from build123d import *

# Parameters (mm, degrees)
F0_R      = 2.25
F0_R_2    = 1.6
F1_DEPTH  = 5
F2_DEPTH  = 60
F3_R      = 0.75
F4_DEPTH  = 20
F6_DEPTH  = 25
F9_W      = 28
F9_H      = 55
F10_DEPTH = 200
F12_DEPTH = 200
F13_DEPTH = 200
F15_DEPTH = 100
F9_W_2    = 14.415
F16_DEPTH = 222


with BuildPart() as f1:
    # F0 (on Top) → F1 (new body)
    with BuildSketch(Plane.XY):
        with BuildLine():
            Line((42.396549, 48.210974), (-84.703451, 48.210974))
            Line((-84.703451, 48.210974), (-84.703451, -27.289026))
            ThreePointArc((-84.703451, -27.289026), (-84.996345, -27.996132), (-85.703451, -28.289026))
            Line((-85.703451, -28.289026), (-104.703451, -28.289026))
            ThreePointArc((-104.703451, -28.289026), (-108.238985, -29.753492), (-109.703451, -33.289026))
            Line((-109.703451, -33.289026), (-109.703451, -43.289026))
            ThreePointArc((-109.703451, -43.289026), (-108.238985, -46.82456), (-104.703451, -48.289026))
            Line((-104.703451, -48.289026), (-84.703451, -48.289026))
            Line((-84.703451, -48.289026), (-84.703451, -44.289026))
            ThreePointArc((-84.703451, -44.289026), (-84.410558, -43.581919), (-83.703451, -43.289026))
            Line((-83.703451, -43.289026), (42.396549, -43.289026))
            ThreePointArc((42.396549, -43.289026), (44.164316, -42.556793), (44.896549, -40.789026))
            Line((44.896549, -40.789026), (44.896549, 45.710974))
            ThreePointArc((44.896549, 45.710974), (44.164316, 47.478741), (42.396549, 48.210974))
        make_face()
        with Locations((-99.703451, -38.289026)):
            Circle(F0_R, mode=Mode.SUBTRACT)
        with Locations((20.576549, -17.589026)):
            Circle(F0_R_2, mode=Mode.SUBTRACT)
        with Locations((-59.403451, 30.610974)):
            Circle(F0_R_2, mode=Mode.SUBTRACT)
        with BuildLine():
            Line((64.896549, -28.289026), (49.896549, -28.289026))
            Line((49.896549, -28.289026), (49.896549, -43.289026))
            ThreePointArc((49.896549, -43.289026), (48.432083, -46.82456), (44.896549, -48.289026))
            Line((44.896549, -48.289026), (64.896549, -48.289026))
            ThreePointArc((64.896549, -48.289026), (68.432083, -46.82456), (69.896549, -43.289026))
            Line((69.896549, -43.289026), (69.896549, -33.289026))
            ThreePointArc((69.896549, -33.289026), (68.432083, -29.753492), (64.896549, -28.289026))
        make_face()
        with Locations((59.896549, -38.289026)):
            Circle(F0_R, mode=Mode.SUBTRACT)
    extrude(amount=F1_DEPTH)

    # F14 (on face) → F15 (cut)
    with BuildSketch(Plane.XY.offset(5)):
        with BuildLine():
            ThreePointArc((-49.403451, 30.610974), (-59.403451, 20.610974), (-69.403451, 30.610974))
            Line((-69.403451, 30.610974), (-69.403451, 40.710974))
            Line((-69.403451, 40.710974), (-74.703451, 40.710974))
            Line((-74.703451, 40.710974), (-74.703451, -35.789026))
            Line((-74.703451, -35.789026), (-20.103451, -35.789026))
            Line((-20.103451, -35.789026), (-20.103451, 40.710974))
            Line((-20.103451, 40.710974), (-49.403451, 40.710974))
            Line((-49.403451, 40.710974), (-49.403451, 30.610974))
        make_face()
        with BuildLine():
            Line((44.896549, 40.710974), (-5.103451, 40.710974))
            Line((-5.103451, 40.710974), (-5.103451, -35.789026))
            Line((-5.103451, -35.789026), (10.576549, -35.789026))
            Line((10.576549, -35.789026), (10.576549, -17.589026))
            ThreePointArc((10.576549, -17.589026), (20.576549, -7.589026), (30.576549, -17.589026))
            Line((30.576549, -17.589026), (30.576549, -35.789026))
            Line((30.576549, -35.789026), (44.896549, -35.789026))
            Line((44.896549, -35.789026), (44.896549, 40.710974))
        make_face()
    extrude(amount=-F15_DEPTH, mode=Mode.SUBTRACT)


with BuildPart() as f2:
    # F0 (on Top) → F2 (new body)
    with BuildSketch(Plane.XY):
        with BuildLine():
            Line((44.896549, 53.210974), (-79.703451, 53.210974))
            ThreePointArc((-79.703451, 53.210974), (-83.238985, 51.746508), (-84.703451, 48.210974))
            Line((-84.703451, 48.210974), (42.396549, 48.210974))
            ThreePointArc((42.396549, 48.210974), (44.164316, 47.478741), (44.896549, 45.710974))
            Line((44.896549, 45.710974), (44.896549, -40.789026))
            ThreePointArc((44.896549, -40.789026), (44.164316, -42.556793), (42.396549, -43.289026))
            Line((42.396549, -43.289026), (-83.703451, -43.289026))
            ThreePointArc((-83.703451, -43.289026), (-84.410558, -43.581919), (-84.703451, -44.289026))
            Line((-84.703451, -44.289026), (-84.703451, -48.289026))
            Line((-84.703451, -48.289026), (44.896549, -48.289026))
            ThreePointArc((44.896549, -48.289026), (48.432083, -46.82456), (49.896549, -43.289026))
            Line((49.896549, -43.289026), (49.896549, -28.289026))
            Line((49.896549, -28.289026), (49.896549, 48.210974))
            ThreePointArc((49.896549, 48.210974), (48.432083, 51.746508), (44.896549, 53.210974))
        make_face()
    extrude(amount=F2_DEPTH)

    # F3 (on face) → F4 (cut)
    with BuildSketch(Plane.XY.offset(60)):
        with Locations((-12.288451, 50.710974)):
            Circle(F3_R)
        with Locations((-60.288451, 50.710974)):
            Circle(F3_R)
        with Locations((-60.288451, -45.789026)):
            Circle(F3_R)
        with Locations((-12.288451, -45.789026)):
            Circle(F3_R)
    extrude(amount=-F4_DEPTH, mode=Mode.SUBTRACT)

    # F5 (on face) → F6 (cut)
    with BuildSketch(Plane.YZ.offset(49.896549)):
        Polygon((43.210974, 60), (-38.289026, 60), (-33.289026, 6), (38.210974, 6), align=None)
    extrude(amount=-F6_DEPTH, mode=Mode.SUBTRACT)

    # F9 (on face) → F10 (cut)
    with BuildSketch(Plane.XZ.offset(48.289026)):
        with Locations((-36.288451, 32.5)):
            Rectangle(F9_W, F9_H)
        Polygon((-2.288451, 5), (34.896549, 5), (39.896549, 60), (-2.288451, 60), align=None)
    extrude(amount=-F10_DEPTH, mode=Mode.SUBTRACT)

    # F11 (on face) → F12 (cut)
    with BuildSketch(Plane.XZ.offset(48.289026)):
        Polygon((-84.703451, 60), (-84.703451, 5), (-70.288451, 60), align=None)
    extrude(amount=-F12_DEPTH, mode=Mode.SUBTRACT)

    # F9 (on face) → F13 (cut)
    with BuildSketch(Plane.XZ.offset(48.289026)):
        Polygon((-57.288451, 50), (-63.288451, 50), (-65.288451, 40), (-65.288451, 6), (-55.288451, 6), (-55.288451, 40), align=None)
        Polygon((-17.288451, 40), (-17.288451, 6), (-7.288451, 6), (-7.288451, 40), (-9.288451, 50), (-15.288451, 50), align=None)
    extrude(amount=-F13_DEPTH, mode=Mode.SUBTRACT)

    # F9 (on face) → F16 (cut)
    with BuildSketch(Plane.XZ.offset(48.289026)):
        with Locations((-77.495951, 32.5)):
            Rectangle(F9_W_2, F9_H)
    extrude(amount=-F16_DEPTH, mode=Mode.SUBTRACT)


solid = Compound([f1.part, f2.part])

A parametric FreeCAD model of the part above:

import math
import FreeCAD as App
import Part
import Sketcher

doc = App.newDocument("Part")
params = doc.addObject("Spreadsheet::Sheet", "Params")
for row, (alias, value) in enumerate([
    ("sketch1_radius", "5 mm"),
    ("sketch1_radius2", "0.999999 mm"),
    ("sketch1_diameter", "4.5 mm"),
    ("sketch1_diameter2", "3.2 mm"),
    ("sketch1_radius3", "2.5 mm"),
    ("pad1_length", "5 mm"),
    ("sketch2_radius", "10 mm"),
    ("sketch2_width", "50 mm"),
    ("sketch2_width2", "5.3 mm"),
    ("sketch2_width3", "54.6 mm"),
    ("sketch2_height", "10.1 mm"),
    ("pocket1_length", "100 mm"),
    ("sketch3_radius", "5 mm"),
    ("sketch3_radius2", "0.999999 mm"),
    ("sketch3_radius3", "2.5 mm"),
    ("sketch3_width", "124.6 mm"),
    ("sketch3_height", "86.5 mm"),
    ("pad2_length", "60 mm"),
    ("sketch4_diameter", "1.5 mm"),
    ("pocket2_length", "20 mm"),
    ("sketch5_width", "81.5 mm"),
    ("sketch5_width2", "71.5 mm"),
    ("pocket3_length", "25 mm"),
    ("sketch6_width", "28 mm"),
    ("sketch6_height", "55 mm"),
    ("pocket4_length", "200 mm"),
    ("sketch7_height", "55 mm"),
    ("pocket5_length", "200 mm"),
    ("sketch8_width", "6 mm"),
    ("sketch8_width2", "10 mm"),
    ("sketch8_height", "34 mm"),
    ("pocket6_length", "200 mm"),
    ("sketch9_height", "55 mm"),
    ("pocket7_length", "222 mm"),
], start=1):
    params.set(f"A{row}", alias)
    params.set(f"B{row}", "=" + value)
    params.setAlias(f"B{row}", alias)

body = doc.addObject("PartDesign::Body", "Body")
body.AllowCompound = True

# Sketch on XY plane
sketch1 = body.newObject("Sketcher::SketchObject", "Sketch")
sketch1.AttachmentSupport = (doc.getObject("XY_Plane"), [""])
sketch1.MapMode = "FlatFace"
sketch1.addGeometry(Part.LineSegment(App.Vector(42.4, 48.2, 0), App.Vector(-84.7, 48.2, 0)), False)
sketch1.addGeometry(Part.LineSegment(App.Vector(-84.7, 48.2, 0), App.Vector(-84.7, -27.3, 0)), False)
sketch1.addGeometry(Part.ArcOfCircle(Part.Circle(App.Vector(-85.7, -27.3, 0), App.Vector(0, 0, 1), 1), math.radians(-90), math.radians(0)), False)
sketch1.addGeometry(Part.LineSegment(App.Vector(-85.7, -28.3, 0), App.Vector(-104.7, -28.3, 0)), False)
sketch1.addGeometry(Part.ArcOfCircle(Part.Circle(App.Vector(-104.7, -33.3, 0), App.Vector(0, 0, 1), 5), math.radians(90), math.radians(180)), False)
sketch1.addGeometry(Part.LineSegment(App.Vector(-109.7, -33.3, 0), App.Vector(-109.7, -43.3, 0)), False)
sketch1.addGeometry(Part.ArcOfCircle(Part.Circle(App.Vector(-104.7, -43.3, 0), App.Vector(0, 0, 1), 5), math.radians(180), math.radians(270)), False)
sketch1.addGeometry(Part.LineSegment(App.Vector(-104.7, -48.3, 0), App.Vector(-84.7, -48.3, 0)), False)
sketch1.addGeometry(Part.LineSegment(App.Vector(-84.7, -48.3, 0), App.Vector(-84.7, -44.3, 0)), False)
sketch1.addGeometry(Part.ArcOfCircle(Part.Circle(App.Vector(-83.7, -44.3, 0), App.Vector(0, 0, 1), 1), math.radians(90), math.radians(180)), False)
sketch1.addGeometry(Part.LineSegment(App.Vector(-83.7, -43.3, 0), App.Vector(42.4, -43.3, 0)), False)
sketch1.addGeometry(Part.ArcOfCircle(Part.Circle(App.Vector(42.4, -40.8, 0), App.Vector(0, 0, 1), 2.5), math.radians(-90), math.radians(0)), False)
sketch1.addGeometry(Part.LineSegment(App.Vector(44.9, -40.8, 0), App.Vector(44.9, 45.7, 0)), False)
sketch1.addGeometry(Part.ArcOfCircle(Part.Circle(App.Vector(42.4, 45.7, 0), App.Vector(0, 0, 1), 2.5), math.radians(0), math.radians(90)), False)
sketch1.addGeometry(Part.Circle(App.Vector(-99.7, -38.3, 0), App.Vector(0, 0, 1), 2.2), False)
sketch1.addGeometry(Part.Circle(App.Vector(20.6, -17.6, 0), App.Vector(0, 0, 1), 1.6), False)
sketch1.addGeometry(Part.Circle(App.Vector(-59.4, 30.6, 0), App.Vector(0, 0, 1), 1.6), False)
sketch1.addGeometry(Part.LineSegment(App.Vector(64.9, -28.3, 0), App.Vector(49.9, -28.3, 0)), False)
sketch1.addGeometry(Part.LineSegment(App.Vector(49.9, -28.3, 0), App.Vector(49.9, -43.3, 0)), False)
sketch1.addGeometry(Part.ArcOfCircle(Part.Circle(App.Vector(44.9, -43.3, 0), App.Vector(0, 0, 1), 5), math.radians(-90), math.radians(0)), False)
sketch1.addGeometry(Part.LineSegment(App.Vector(44.9, -48.3, 0), App.Vector(64.9, -48.3, 0)), False)
sketch1.addGeometry(Part.ArcOfCircle(Part.Circle(App.Vector(64.9, -43.3, 0), App.Vector(0, 0, 1), 5), math.radians(-90), math.radians(0)), False)
sketch1.addGeometry(Part.LineSegment(App.Vector(69.9, -43.3, 0), App.Vector(69.9, -33.3, 0)), False)
sketch1.addGeometry(Part.ArcOfCircle(Part.Circle(App.Vector(64.9, -33.3, 0), App.Vector(0, 0, 1), 5), math.radians(0), math.radians(90)), False)
sketch1.addGeometry(Part.Circle(App.Vector(59.9, -38.3, 0), App.Vector(0, 0, 1), 2.2), False)
sketch1.addConstraint(Sketcher.Constraint("Coincident", 0, 2, 1, 1))
sketch1.addConstraint(Sketcher.Constraint("Coincident", 1, 2, 2, 2))
sketch1.addConstraint(Sketcher.Constraint("Coincident", 2, 1, 3, 1))
sketch1.addConstraint(Sketcher.Constraint("Tangent", 3, 2, 4, 1))
sketch1.addConstraint(Sketcher.Constraint("Tangent", 4, 2, 5, 1))
sketch1.addConstraint(Sketcher.Constraint("Tangent", 5, 2, 6, 1))
sketch1.addConstraint(Sketcher.Constraint("Tangent", 6, 2, 7, 1))
sketch1.addConstraint(Sketcher.Constraint("Coincident", 7, 2, 8, 1))
sketch1.addConstraint(Sketcher.Constraint("Tangent", 8, 2, 9, 2))
sketch1.addConstraint(Sketcher.Constraint("Tangent", 9, 1, 10, 1))
sketch1.addConstraint(Sketcher.Constraint("Tangent", 10, 2, 11, 1))
sketch1.addConstraint(Sketcher.Constraint("Tangent", 11, 2, 12, 1))
sketch1.addConstraint(Sketcher.Constraint("Tangent", 12, 2, 13, 1))
sketch1.addConstraint(Sketcher.Constraint("Tangent", 13, 2, 0, 1))
sketch1.addConstraint(Sketcher.Constraint("Coincident", 17, 2, 18, 1))
sketch1.addConstraint(Sketcher.Constraint("Tangent", 18, 2, 19, 2))
sketch1.addConstraint(Sketcher.Constraint("Tangent", 19, 1, 20, 1))
sketch1.addConstraint(Sketcher.Constraint("Tangent", 20, 2, 21, 1))
sketch1.addConstraint(Sketcher.Constraint("Tangent", 21, 2, 22, 1))
sketch1.addConstraint(Sketcher.Constraint("Tangent", 22, 2, 23, 1))
sketch1.addConstraint(Sketcher.Constraint("Tangent", 23, 2, 17, 1))
sketch1.addConstraint(Sketcher.Constraint("Horizontal", 0))
sketch1.addConstraint(Sketcher.Constraint("Vertical", 1))
sketch1.addConstraint(Sketcher.Constraint("Horizontal", 3))
sketch1.addConstraint(Sketcher.Constraint("Vertical", 5))
sketch1.addConstraint(Sketcher.Constraint("Horizontal", 7))
sketch1.addConstraint(Sketcher.Constraint("Vertical", 8))
sketch1.addConstraint(Sketcher.Constraint("Horizontal", 10))
sketch1.addConstraint(Sketcher.Constraint("Vertical", 12))
sketch1.addConstraint(Sketcher.Constraint("Horizontal", 17))
sketch1.addConstraint(Sketcher.Constraint("Vertical", 18))
sketch1.addConstraint(Sketcher.Constraint("Horizontal", 20))
sketch1.addConstraint(Sketcher.Constraint("Vertical", 22))
sketch1.addConstraint(Sketcher.Constraint("Equal", 4, 6))
sketch1.addConstraint(Sketcher.Constraint("Equal", 11, 13))
sketch1.addConstraint(Sketcher.Constraint("Equal", 15, 16))
sketch1.addConstraint(Sketcher.Constraint("Equal", 6, 19))
sketch1.addConstraint(Sketcher.Constraint("Equal", 19, 21))
sketch1.addConstraint(Sketcher.Constraint("Equal", 21, 23))
sketch1.addConstraint(Sketcher.Constraint("Equal", 14, 24))
sketch1.addConstraint(Sketcher.Constraint("Horizontal", 6, 3, 19, 3))
sketch1.addConstraint(Sketcher.Constraint("Horizontal", 4, 3, 23, 3))
sketch1.addConstraint(Sketcher.Constraint("Horizontal", 14, 3, 24, 3))
sketch1.addConstraint(Sketcher.Constraint("Horizontal", 5, 2, 9, 1))
sketch1.addConstraint(Sketcher.Constraint("Vertical", 1, 2, 7, 2))
sketch1.addConstraint(Sketcher.Constraint("Vertical", 19, 3, 11, 2))
sketch1.addConstraint(Sketcher.Constraint("Equal", 7, 20))
sketch1.addConstraint(Sketcher.Constraint("Equal", 17, 18))
sketch1.addConstraint(Sketcher.Constraint("Radius", 4, 5.0))
sketch1.addConstraint(Sketcher.Constraint("Radius", 9, 0.999999))
sketch1.addConstraint(Sketcher.Constraint("Diameter", 14, 4.5))
sketch1.addConstraint(Sketcher.Constraint("Diameter", 15, 3.2))
sketch1.addConstraint(Sketcher.Constraint("Radius", 11, 2.5))
sketch1.addConstraint(Sketcher.Constraint("DistanceX", 3, 2, 3, 1, 19.0))
sketch1.addConstraint(Sketcher.Constraint("DistanceX", 7, 1, 7, 2, 20.0))
sketch1.addConstraint(Sketcher.Constraint("DistanceX", 0, 2, 0, 1, 127.1))
sketch1.addConstraint(Sketcher.Constraint("DistanceY", 1, 2, 1, 1, 75.5))
sketch1.addConstraint(Sketcher.Constraint("DistanceY", 12, 1, 12, 2, 86.5))
sketch1.addConstraint(Sketcher.Constraint("DistanceX", 2, 3, 9, 3, 2.000002))
sketch1.addConstraint(Sketcher.Constraint("DistanceX", 4, 3, 14, 3, 5.0))
sketch1.addConstraint(Sketcher.Constraint("DistanceY", 14, 3, 4, 3, 5.0))
sketch1.addConstraint(Sketcher.Constraint("DistanceX", 24, 3, 21, 3, 5.0))
sketch1.addConstraint(Sketcher.Constraint("DistanceY", 11, 3, 15, 3, 23.2))
sketch1.addConstraint(Sketcher.Constraint("DistanceX", 4, 3, 16, 3, 45.3))
sketch1.addConstraint(Sketcher.Constraint("DistanceY", 4, 3, 16, 3, 63.9))
sketch1.addConstraint(Sketcher.Constraint("DistanceX", 15, 3, 11, 3, 21.82))
sketch1.addConstraint(Sketcher.Constraint("DistanceX", 4, 3, -1, 1, 104.703451))
sketch1.addConstraint(Sketcher.Constraint("DistanceY", 2, 3, -1, 1, 27.289023))
sketch1.setExpression("Constraints[48]", "Params.sketch1_radius")
sketch1.setExpression("Constraints[49]", "Params.sketch1_radius2")
sketch1.setExpression("Constraints[50]", "Params.sketch1_diameter")
sketch1.setExpression("Constraints[51]", "Params.sketch1_diameter2")
sketch1.setExpression("Constraints[52]", "Params.sketch1_radius3")
pad1 = body.newObject("PartDesign::Pad", "Pad")
pad1.Profile = sketch1
pad1.setExpression("Length", "Params.pad1_length")

# Sketch on XY plane
sketch2 = body.newObject("Sketcher::SketchObject", "Sketch001")
sketch2.AttachmentSupport = (doc.getObject("XY_Plane"), [""])
sketch2.MapMode = "FlatFace"
sketch2.AttachmentOffset = App.Placement(App.Vector(0, 0, 5), App.Rotation())
sketch2.addGeometry(Part.ArcOfCircle(Part.Circle(App.Vector(-59, 31, 0), App.Vector(0, 0, 1), 10), math.radians(180), math.radians(360)), False)
sketch2.addGeometry(Part.LineSegment(App.Vector(-69, 31, 0), App.Vector(-69, 41, 0)), False)
sketch2.addGeometry(Part.LineSegment(App.Vector(-69, 41, 0), App.Vector(-75, 41, 0)), False)
sketch2.addGeometry(Part.LineSegment(App.Vector(-75, 41, 0), App.Vector(-75, -36, 0)), False)
sketch2.addGeometry(Part.LineSegment(App.Vector(-75, -36, 0), App.Vector(-20, -36, 0)), False)
sketch2.addGeometry(Part.LineSegment(App.Vector(-20, -36, 0), App.Vector(-20, 41, 0)), False)
sketch2.addGeometry(Part.LineSegment(App.Vector(-20, 41, 0), App.Vector(-49, 41, 0)), False)
sketch2.addGeometry(Part.LineSegment(App.Vector(-49, 41, 0), App.Vector(-49, 31, 0)), False)
sketch2.addGeometry(Part.LineSegment(App.Vector(45, 41, 0), App.Vector(-5, 41, 0)), False)
sketch2.addGeometry(Part.LineSegment(App.Vector(-5, 41, 0), App.Vector(-5, -36, 0)), False)
sketch2.addGeometry(Part.LineSegment(App.Vector(-5, -36, 0), App.Vector(11, -36, 0)), False)
sketch2.addGeometry(Part.LineSegment(App.Vector(11, -36, 0), App.Vector(11, -18, 0)), False)
sketch2.addGeometry(Part.ArcOfCircle(Part.Circle(App.Vector(21, -18, 0), App.Vector(0, 0, 1), 10), math.radians(0), math.radians(180)), False)
sketch2.addGeometry(Part.LineSegment(App.Vector(31, -18, 0), App.Vector(31, -36, 0)), False)
sketch2.addGeometry(Part.LineSegment(App.Vector(31, -36, 0), App.Vector(45, -36, 0)), False)
sketch2.addGeometry(Part.LineSegment(App.Vector(45, -36, 0), App.Vector(45, 41, 0)), False)
sketch2.addConstraint(Sketcher.Constraint("Tangent", 0, 1, 1, 1))
sketch2.addConstraint(Sketcher.Constraint("Coincident", 1, 2, 2, 1))
sketch2.addConstraint(Sketcher.Constraint("Coincident", 2, 2, 3, 1))
sketch2.addConstraint(Sketcher.Constraint("Coincident", 3, 2, 4, 1))
sketch2.addConstraint(Sketcher.Constraint("Coincident", 4, 2, 5, 1))
sketch2.addConstraint(Sketcher.Constraint("Coincident", 5, 2, 6, 1))
sketch2.addConstraint(Sketcher.Constraint("Coincident", 6, 2, 7, 1))
sketch2.addConstraint(Sketcher.Constraint("Tangent", 7, 2, 0, 2))
sketch2.addConstraint(Sketcher.Constraint("Coincident", 8, 2, 9, 1))
sketch2.addConstraint(Sketcher.Constraint("Coincident", 9, 2, 10, 1))
sketch2.addConstraint(Sketcher.Constraint("Coincident", 10, 2, 11, 1))
sketch2.addConstraint(Sketcher.Constraint("Tangent", 11, 2, 12, 2))
sketch2.addConstraint(Sketcher.Constraint("Tangent", 12, 1, 13, 1))
sketch2.addConstraint(Sketcher.Constraint("Coincident", 13, 2, 14, 1))
sketch2.addConstraint(Sketcher.Constraint("Coincident", 14, 2, 15, 1))
sketch2.addConstraint(Sketcher.Constraint("Coincident", 15, 2, 8, 1))
sketch2.addConstraint(Sketcher.Constraint("Vertical", 1))
sketch2.addConstraint(Sketcher.Constraint("Horizontal", 2))
sketch2.addConstraint(Sketcher.Constraint("Vertical", 3))
sketch2.addConstraint(Sketcher.Constraint("Horizontal", 4))
sketch2.addConstraint(Sketcher.Constraint("Vertical", 5))
sketch2.addConstraint(Sketcher.Constraint("Horizontal", 6))
sketch2.addConstraint(Sketcher.Constraint("Vertical", 7))
sketch2.addConstraint(Sketcher.Constraint("Horizontal", 8))
sketch2.addConstraint(Sketcher.Constraint("Vertical", 9))
sketch2.addConstraint(Sketcher.Constraint("Horizontal", 10))
sketch2.addConstraint(Sketcher.Constraint("Vertical", 11))
sketch2.addConstraint(Sketcher.Constraint("Vertical", 13))
sketch2.addConstraint(Sketcher.Constraint("Horizontal", 14))
sketch2.addConstraint(Sketcher.Constraint("Vertical", 15))
sketch2.addConstraint(Sketcher.Constraint("Equal", 0, 12))
sketch2.addConstraint(Sketcher.Constraint("Horizontal", 2, 2, 5, 2))
sketch2.addConstraint(Sketcher.Constraint("Horizontal", 6, 2, 8, 2))
sketch2.addConstraint(Sketcher.Constraint("Horizontal", 4, 2, 9, 2))
sketch2.addConstraint(Sketcher.Constraint("Horizontal", 10, 2, 13, 2))
sketch2.addConstraint(Sketcher.Constraint("Radius", 0, 10.0))
sketch2.addConstraint(Sketcher.Constraint("DistanceX", 8, 2, 8, 1, 50.0))
sketch2.addConstraint(Sketcher.Constraint("DistanceX", 2, 2, 2, 1, 5.3))
sketch2.addConstraint(Sketcher.Constraint("DistanceX", 4, 1, 4, 2, 54.6))
sketch2.addConstraint(Sketcher.Constraint("DistanceY", 1, 1, 1, 2, 10.1))
sketch2.addConstraint(Sketcher.Constraint("DistanceY", 3, 2, 3, 1, 76.5))
sketch2.addConstraint(Sketcher.Constraint("DistanceY", 11, 1, 11, 2, 18.2))
sketch2.addConstraint(Sketcher.Constraint("DistanceX", 5, 2, 8, 2, 15.0))
sketch2.addConstraint(Sketcher.Constraint("DistanceX", 10, 1, 10, 2, 15.68))
sketch2.addConstraint(Sketcher.Constraint("DistanceX", 0, 3, -1, 1, 59.403451))
sketch2.addConstraint(Sketcher.Constraint("DistanceY", -1, 1, 0, 3, 30.610974))
sketch2.setExpression("Constraints[35]", "Params.sketch2_radius")
sketch2.setExpression("Constraints[36]", "Params.sketch2_width")
sketch2.setExpression("Constraints[37]", "Params.sketch2_width2")
sketch2.setExpression("Constraints[38]", "Params.sketch2_width3")
sketch2.setExpression("Constraints[39]", "Params.sketch2_height")
pocket1 = body.newObject("PartDesign::Pocket", "Pocket")
pocket1.Profile = sketch2
pocket1.setExpression("Length", "Params.pocket1_length")
body2 = doc.addObject("PartDesign::Body", "Body001")

# Sketch on XY plane
sketch3 = body2.newObject("Sketcher::SketchObject", "Sketch002")
sketch3.AttachmentSupport = (doc.getObject("XY_Plane001"), [""])
sketch3.MapMode = "FlatFace"
sketch3.addGeometry(Part.LineSegment(App.Vector(44.9, 53.2, 0), App.Vector(-79.7, 53.2, 0)), False)
sketch3.addGeometry(Part.ArcOfCircle(Part.Circle(App.Vector(-79.7, 48.2, 0), App.Vector(0, 0, 1), 5), math.radians(90), math.radians(180)), False)
sketch3.addGeometry(Part.LineSegment(App.Vector(-84.7, 48.2, 0), App.Vector(42.4, 48.2, 0)), False)
sketch3.addGeometry(Part.ArcOfCircle(Part.Circle(App.Vector(42.4, 45.7, 0), App.Vector(0, 0, 1), 2.5), math.radians(0), math.radians(90)), False)
sketch3.addGeometry(Part.LineSegment(App.Vector(44.9, 45.7, 0), App.Vector(44.9, -40.8, 0)), False)
sketch3.addGeometry(Part.ArcOfCircle(Part.Circle(App.Vector(42.4, -40.8, 0), App.Vector(0, 0, 1), 2.5), math.radians(-90), math.radians(0)), False)
sketch3.addGeometry(Part.LineSegment(App.Vector(42.4, -43.3, 0), App.Vector(-83.7, -43.3, 0)), False)
sketch3.addGeometry(Part.ArcOfCircle(Part.Circle(App.Vector(-83.7, -44.3, 0), App.Vector(0, 0, 1), 1), math.radians(90), math.radians(180)), False)
sketch3.addGeometry(Part.LineSegment(App.Vector(-84.7, -44.3, 0), App.Vector(-84.7, -48.3, 0)), False)
sketch3.addGeometry(Part.LineSegment(App.Vector(-84.7, -48.3, 0), App.Vector(44.9, -48.3, 0)), False)
sketch3.addGeometry(Part.ArcOfCircle(Part.Circle(App.Vector(44.9, -43.3, 0), App.Vector(0, 0, 1), 5), math.radians(-90), math.radians(0)), False)
sketch3.addGeometry(Part.LineSegment(App.Vector(49.9, -43.3, 0), App.Vector(49.9, 48.2, 0)), False)
sketch3.addGeometry(Part.ArcOfCircle(Part.Circle(App.Vector(44.9, 48.2, 0), App.Vector(0, 0, 1), 5), math.radians(0), math.radians(90)), False)
sketch3.addConstraint(Sketcher.Constraint("Tangent", 0, 2, 1, 1))
sketch3.addConstraint(Sketcher.Constraint("Coincident", 1, 2, 2, 1))
sketch3.addConstraint(Sketcher.Constraint("Tangent", 2, 2, 3, 2))
sketch3.addConstraint(Sketcher.Constraint("Tangent", 3, 1, 4, 1))
sketch3.addConstraint(Sketcher.Constraint("Tangent", 4, 2, 5, 2))
sketch3.addConstraint(Sketcher.Constraint("Tangent", 5, 1, 6, 1))
sketch3.addConstraint(Sketcher.Constraint("Tangent", 6, 2, 7, 1))
sketch3.addConstraint(Sketcher.Constraint("Tangent", 7, 2, 8, 1))
sketch3.addConstraint(Sketcher.Constraint("Coincident", 8, 2, 9, 1))
sketch3.addConstraint(Sketcher.Constraint("Tangent", 9, 2, 10, 1))
sketch3.addConstraint(Sketcher.Constraint("Tangent", 10, 2, 11, 1))
sketch3.addConstraint(Sketcher.Constraint("Tangent", 11, 2, 12, 1))
sketch3.addConstraint(Sketcher.Constraint("Tangent", 12, 2, 0, 1))
sketch3.addConstraint(Sketcher.Constraint("Horizontal", 0))
sketch3.addConstraint(Sketcher.Constraint("Horizontal", 2))
sketch3.addConstraint(Sketcher.Constraint("Vertical", 4))
sketch3.addConstraint(Sketcher.Constraint("Horizontal", 6))
sketch3.addConstraint(Sketcher.Constraint("Vertical", 8))
sketch3.addConstraint(Sketcher.Constraint("Horizontal", 9))
sketch3.addConstraint(Sketcher.Constraint("Vertical", 11))
sketch3.addConstraint(Sketcher.Constraint("Equal", 3, 5))
sketch3.addConstraint(Sketcher.Constraint("Equal", 1, 10))
sketch3.addConstraint(Sketcher.Constraint("Equal", 10, 12))
sketch3.addConstraint(Sketcher.Constraint("Horizontal", 12, 3, 1, 2))
sketch3.addConstraint(Sketcher.Constraint("Horizontal", 10, 3, 5, 1))
sketch3.addConstraint(Sketcher.Constraint("Vertical", 12, 3, 3, 1))
sketch3.addConstraint(Sketcher.Constraint("Vertical", 1, 2, 7, 2))
sketch3.addConstraint(Sketcher.Constraint("Radius", 1, 5.0))
sketch3.addConstraint(Sketcher.Constraint("Radius", 7, 0.999999))
sketch3.addConstraint(Sketcher.Constraint("Radius", 3, 2.5))
sketch3.addConstraint(Sketcher.Constraint("DistanceX", 0, 2, 0, 1, 124.6))
sketch3.addConstraint(Sketcher.Constraint("DistanceY", 4, 2, 4, 1, 86.5))
sketch3.addConstraint(Sketcher.Constraint("DistanceX", 1, 3, -1, 1, 79.703451))
sketch3.addConstraint(Sketcher.Constraint("DistanceY", -1, 1, 1, 3, 48.210974))
sketch3.setExpression("Constraints[27]", "Params.sketch3_radius")
sketch3.setExpression("Constraints[28]", "Params.sketch3_radius2")
sketch3.setExpression("Constraints[29]", "Params.sketch3_radius3")
sketch3.setExpression("Constraints[30]", "Params.sketch3_width")
sketch3.setExpression("Constraints[31]", "Params.sketch3_height")
pad2 = body2.newObject("PartDesign::Pad", "Pad001")
pad2.Profile = sketch3
pad2.setExpression("Length", "Params.pad2_length")

# Sketch on XY plane
sketch4 = body2.newObject("Sketcher::SketchObject", "Sketch003")
sketch4.AttachmentSupport = (doc.getObject("XY_Plane001"), [""])
sketch4.MapMode = "FlatFace"
sketch4.AttachmentOffset = App.Placement(App.Vector(0, 0, 60), App.Rotation())
sketch4.addGeometry(Part.Circle(App.Vector(-12.3, 50.7, 0), App.Vector(0, 0, 1), 0.8), False)
sketch4.addGeometry(Part.Circle(App.Vector(-60.3, 50.7, 0), App.Vector(0, 0, 1), 0.8), False)
sketch4.addGeometry(Part.Circle(App.Vector(-60.3, -45.8, 0), App.Vector(0, 0, 1), 0.8), False)
sketch4.addGeometry(Part.Circle(App.Vector(-12.3, -45.8, 0), App.Vector(0, 0, 1), 0.8), False)
sketch4.addConstraint(Sketcher.Constraint("Equal", 0, 1))
sketch4.addConstraint(Sketcher.Constraint("Equal", 1, 2))
sketch4.addConstraint(Sketcher.Constraint("Equal", 2, 3))
sketch4.addConstraint(Sketcher.Constraint("Horizontal", 0, 3, 1, 3))
sketch4.addConstraint(Sketcher.Constraint("Horizontal", 2, 3, 3, 3))
sketch4.addConstraint(Sketcher.Constraint("Vertical", 1, 3, 2, 3))
sketch4.addConstraint(Sketcher.Constraint("Vertical", 0, 3, 3, 3))
sketch4.addConstraint(Sketcher.Constraint("Diameter", 0, 1.5))
sketch4.addConstraint(Sketcher.Constraint("DistanceX", 1, 3, 0, 3, 48.0))
sketch4.addConstraint(Sketcher.Constraint("DistanceY", 2, 3, 1, 3, 96.5))
sketch4.addConstraint(Sketcher.Constraint("DistanceX", 0, 3, -1, 1, 12.288451))
sketch4.addConstraint(Sketcher.Constraint("DistanceY", -1, 1, 0, 3, 50.710974))
sketch4.setExpression("Constraints[7]", "Params.sketch4_diameter")
pocket2 = body2.newObject("PartDesign::Pocket", "Pocket001")
pocket2.Profile = sketch4
pocket2.setExpression("Length", "Params.pocket2_length")

# Sketch on YZ plane
sketch5 = body2.newObject("Sketcher::SketchObject", "Sketch004")
sketch5.AttachmentSupport = (doc.getObject("YZ_Plane001"), [""])
sketch5.MapMode = "FlatFace"
sketch5.AttachmentOffset = App.Placement(App.Vector(0, 0, 49.896549), App.Rotation())
sketch5.addGeometry(Part.LineSegment(App.Vector(43, 60, 0), App.Vector(-38, 60, 0)), False)
sketch5.addGeometry(Part.LineSegment(App.Vector(-38, 60, 0), App.Vector(-33, 6, 0)), False)
sketch5.addGeometry(Part.LineSegment(App.Vector(-33, 6, 0), App.Vector(38, 6, 0)), False)
sketch5.addGeometry(Part.LineSegment(App.Vector(38, 6, 0), App.Vector(43, 60, 0)), False)
sketch5.addConstraint(Sketcher.Constraint("Coincident", 0, 2, 1, 1))
sketch5.addConstraint(Sketcher.Constraint("Coincident", 1, 2, 2, 1))
sketch5.addConstraint(Sketcher.Constraint("Coincident", 2, 2, 3, 1))
sketch5.addConstraint(Sketcher.Constraint("Coincident", 3, 2, 0, 1))
sketch5.addConstraint(Sketcher.Constraint("Horizontal", 0))
sketch5.addConstraint(Sketcher.Constraint("Horizontal", 2))
sketch5.addConstraint(Sketcher.Constraint("Equal", 1, 3))
sketch5.addConstraint(Sketcher.Constraint("DistanceX", 0, 2, 0, 1, 81.5))
sketch5.addConstraint(Sketcher.Constraint("DistanceX", 2, 1, 2, 2, 71.5))
sketch5.addConstraint(Sketcher.Constraint("DistanceY", -1, 1, 0, 2, 60.0))
sketch5.addConstraint(Sketcher.Constraint("DistanceY", -1, 1, 1, 2, 6.0))
sketch5.addConstraint(Sketcher.Constraint("DistanceX", 0, 2, -1, 1, 38.289026))
sketch5.setExpression("Constraints[7]", "Params.sketch5_width")
sketch5.setExpression("Constraints[8]", "Params.sketch5_width2")
pocket3 = body2.newObject("PartDesign::Pocket", "Pocket002")
pocket3.Profile = sketch5
pocket3.setExpression("Length", "Params.pocket3_length")

# Sketch on XZ plane
sketch6 = body2.newObject("Sketcher::SketchObject", "Sketch005")
sketch6.AttachmentSupport = (doc.getObject("XZ_Plane001"), [""])
sketch6.MapMode = "FlatFace"
sketch6.AttachmentOffset = App.Placement(App.Vector(0, 0, 48.289026), App.Rotation())
sketch6.addGeometry(Part.LineSegment(App.Vector(-50, 60, 0), App.Vector(-50, 5, 0)), False)
sketch6.addGeometry(Part.LineSegment(App.Vector(-50, 5, 0), App.Vector(-22, 5, 0)), False)
sketch6.addGeometry(Part.LineSegment(App.Vector(-22, 5, 0), App.Vector(-22, 60, 0)), False)
sketch6.addGeometry(Part.LineSegment(App.Vector(-22, 60, 0), App.Vector(-50, 60, 0)), False)
sketch6.addGeometry(Part.LineSegment(App.Vector(-2, 5, 0), App.Vector(35, 5, 0)), False)
sketch6.addGeometry(Part.LineSegment(App.Vector(35, 5, 0), App.Vector(40, 60, 0)), False)
sketch6.addGeometry(Part.LineSegment(App.Vector(40, 60, 0), App.Vector(-2, 60, 0)), False)
sketch6.addGeometry(Part.LineSegment(App.Vector(-2, 60, 0), App.Vector(-2, 5, 0)), False)
sketch6.addConstraint(Sketcher.Constraint("Coincident", 0, 2, 1, 1))
sketch6.addConstraint(Sketcher.Constraint("Coincident", 1, 2, 2, 1))
sketch6.addConstraint(Sketcher.Constraint("Coincident", 2, 2, 3, 1))
sketch6.addConstraint(Sketcher.Constraint("Coincident", 3, 2, 0, 1))
sketch6.addConstraint(Sketcher.Constraint("Coincident", 4, 2, 5, 1))
sketch6.addConstraint(Sketcher.Constraint("Coincident", 5, 2, 6, 1))
sketch6.addConstraint(Sketcher.Constraint("Coincident", 6, 2, 7, 1))
sketch6.addConstraint(Sketcher.Constraint("Coincident", 7, 2, 4, 1))
sketch6.addConstraint(Sketcher.Constraint("Vertical", 0))
sketch6.addConstraint(Sketcher.Constraint("Horizontal", 1))
sketch6.addConstraint(Sketcher.Constraint("Vertical", 2))
sketch6.addConstraint(Sketcher.Constraint("Horizontal", 3))
sketch6.addConstraint(Sketcher.Constraint("Horizontal", 4))
sketch6.addConstraint(Sketcher.Constraint("Horizontal", 6))
sketch6.addConstraint(Sketcher.Constraint("Vertical", 7))
sketch6.addConstraint(Sketcher.Constraint("Horizontal", 1, 2, 4, 2))
sketch6.addConstraint(Sketcher.Constraint("Horizontal", 3, 2, 5, 2))
sketch6.addConstraint(Sketcher.Constraint("DistanceX", 1, 1, 1, 2, 28.0))
sketch6.addConstraint(Sketcher.Constraint("DistanceY", 0, 2, 0, 1, 55.0))
sketch6.addConstraint(Sketcher.Constraint("DistanceY", -1, 1, 0, 2, 5.0))
sketch6.addConstraint(Sketcher.Constraint("DistanceX", 4, 2, 5, 2, 5.0))
sketch6.addConstraint(Sketcher.Constraint("DistanceX", 2, 2, 6, 2, 20.0))
sketch6.addConstraint(Sketcher.Constraint("DistanceX", 4, 1, 4, 2, 37.185))
sketch6.addConstraint(Sketcher.Constraint("DistanceX", 0, 2, -1, 1, 50.288451))
sketch6.setExpression("Constraints[17]", "Params.sketch6_width")
sketch6.setExpression("Constraints[18]", "Params.sketch6_height")
pocket4 = body2.newObject("PartDesign::Pocket", "Pocket003")
pocket4.Profile = sketch6
pocket4.setExpression("Length", "Params.pocket4_length")

# Sketch on XZ plane
sketch7 = body2.newObject("Sketcher::SketchObject", "Sketch006")
sketch7.AttachmentSupport = (doc.getObject("XZ_Plane001"), [""])
sketch7.MapMode = "FlatFace"
sketch7.AttachmentOffset = App.Placement(App.Vector(0, 0, 48.289026), App.Rotation())
sketch7.addGeometry(Part.LineSegment(App.Vector(-85, 60, 0), App.Vector(-85, 5, 0)), False)
sketch7.addGeometry(Part.LineSegment(App.Vector(-85, 5, 0), App.Vector(-70, 60, 0)), False)
sketch7.addGeometry(Part.LineSegment(App.Vector(-70, 60, 0), App.Vector(-85, 60, 0)), False)
sketch7.addConstraint(Sketcher.Constraint("Coincident", 0, 2, 1, 1))
sketch7.addConstraint(Sketcher.Constraint("Coincident", 1, 2, 2, 1))
sketch7.addConstraint(Sketcher.Constraint("Coincident", 2, 2, 0, 1))
sketch7.addConstraint(Sketcher.Constraint("Vertical", 0))
sketch7.addConstraint(Sketcher.Constraint("Horizontal", 2))
sketch7.addConstraint(Sketcher.Constraint("DistanceY", 0, 2, 0, 1, 55.0))
sketch7.addConstraint(Sketcher.Constraint("DistanceY", -1, 1, 0, 2, 5.0))
sketch7.addConstraint(Sketcher.Constraint("DistanceX", 2, 2, 2, 1, 14.415))
sketch7.addConstraint(Sketcher.Constraint("DistanceX", 0, 2, -1, 1, 84.703451))
sketch7.setExpression("Constraints[5]", "Params.sketch7_height")
pocket5 = body2.newObject("PartDesign::Pocket", "Pocket004")
pocket5.Profile = sketch7
pocket5.setExpression("Length", "Params.pocket5_length")

# Sketch on XZ plane
sketch8 = body2.newObject("Sketcher::SketchObject", "Sketch007")
sketch8.AttachmentSupport = (doc.getObject("XZ_Plane001"), [""])
sketch8.MapMode = "FlatFace"
sketch8.AttachmentOffset = App.Placement(App.Vector(0, 0, 48.289026), App.Rotation())
sketch8.addGeometry(Part.LineSegment(App.Vector(-57, 50, 0), App.Vector(-63, 50, 0)), False)
sketch8.addGeometry(Part.LineSegment(App.Vector(-63, 50, 0), App.Vector(-65, 40, 0)), False)
sketch8.addGeometry(Part.LineSegment(App.Vector(-65, 40, 0), App.Vector(-65, 6, 0)), False)
sketch8.addGeometry(Part.LineSegment(App.Vector(-65, 6, 0), App.Vector(-55, 6, 0)), False)
sketch8.addGeometry(Part.LineSegment(App.Vector(-55, 6, 0), App.Vector(-55, 40, 0)), False)
sketch8.addGeometry(Part.LineSegment(App.Vector(-55, 40, 0), App.Vector(-57, 50, 0)), False)
sketch8.addGeometry(Part.LineSegment(App.Vector(-17, 40, 0), App.Vector(-17, 6, 0)), False)
sketch8.addGeometry(Part.LineSegment(App.Vector(-17, 6, 0), App.Vector(-7, 6, 0)), False)
sketch8.addGeometry(Part.LineSegment(App.Vector(-7, 6, 0), App.Vector(-7, 40, 0)), False)
sketch8.addGeometry(Part.LineSegment(App.Vector(-7, 40, 0), App.Vector(-9, 50, 0)), False)
sketch8.addGeometry(Part.LineSegment(App.Vector(-9, 50, 0), App.Vector(-15, 50, 0)), False)
sketch8.addGeometry(Part.LineSegment(App.Vector(-15, 50, 0), App.Vector(-17, 40, 0)), False)
sketch8.addConstraint(Sketcher.Constraint("Coincident", 0, 2, 1, 1))
sketch8.addConstraint(Sketcher.Constraint("Coincident", 1, 2, 2, 1))
sketch8.addConstraint(Sketcher.Constraint("Coincident", 2, 2, 3, 1))
sketch8.addConstraint(Sketcher.Constraint("Coincident", 3, 2, 4, 1))
sketch8.addConstraint(Sketcher.Constraint("Coincident", 4, 2, 5, 1))
sketch8.addConstraint(Sketcher.Constraint("Coincident", 5, 2, 0, 1))
sketch8.addConstraint(Sketcher.Constraint("Coincident", 6, 2, 7, 1))
sketch8.addConstraint(Sketcher.Constraint("Coincident", 7, 2, 8, 1))
sketch8.addConstraint(Sketcher.Constraint("Coincident", 8, 2, 9, 1))
sketch8.addConstraint(Sketcher.Constraint("Coincident", 9, 2, 10, 1))
sketch8.addConstraint(Sketcher.Constraint("Coincident", 10, 2, 11, 1))
sketch8.addConstraint(Sketcher.Constraint("Coincident", 11, 2, 6, 1))
sketch8.addConstraint(Sketcher.Constraint("Horizontal", 0))
sketch8.addConstraint(Sketcher.Constraint("Vertical", 2))
sketch8.addConstraint(Sketcher.Constraint("Horizontal", 3))
sketch8.addConstraint(Sketcher.Constraint("Vertical", 4))
sketch8.addConstraint(Sketcher.Constraint("Vertical", 6))
sketch8.addConstraint(Sketcher.Constraint("Horizontal", 7))
sketch8.addConstraint(Sketcher.Constraint("Vertical", 8))
sketch8.addConstraint(Sketcher.Constraint("Horizontal", 10))
sketch8.addConstraint(Sketcher.Constraint("Parallel", 5, 9))
sketch8.addConstraint(Sketcher.Constraint("Parallel", 1, 11))
sketch8.addConstraint(Sketcher.Constraint("Horizontal", 1, 2, 4, 2))
sketch8.addConstraint(Sketcher.Constraint("Horizontal", 3, 2, 6, 2))
sketch8.addConstraint(Sketcher.Constraint("Horizontal", 4, 2, 8, 2))
sketch8.addConstraint(Sketcher.Constraint("Horizontal", 5, 2, 9, 2))
sketch8.addConstraint(Sketcher.Constraint("Horizontal", 8, 2, 11, 2))
sketch8.addConstraint(Sketcher.Constraint("Equal", 3, 7))
sketch8.addConstraint(Sketcher.Constraint("Equal", 1, 5))
sketch8.addConstraint(Sketcher.Constraint("DistanceX", 0, 2, 0, 1, 6.0))
sketch8.addConstraint(Sketcher.Constraint("DistanceX", 3, 1, 3, 2, 10.0))
sketch8.addConstraint(Sketcher.Constraint("DistanceY", 2, 2, 2, 1, 34.0))
sketch8.addConstraint(Sketcher.Constraint("DistanceY", -1, 1, 0, 2, 50.0))
sketch8.addConstraint(Sketcher.Constraint("DistanceY", -1, 1, 1, 2, 40.0))
sketch8.addConstraint(Sketcher.Constraint("DistanceX", 3, 2, 6, 2, 38.0))
sketch8.addConstraint(Sketcher.Constraint("DistanceX", 0, 2, -1, 1, 63.288451))
sketch8.setExpression("Constraints[29]", "Params.sketch8_width")
sketch8.setExpression("Constraints[30]", "Params.sketch8_width2")
sketch8.setExpression("Constraints[31]", "Params.sketch8_height")
pocket6 = body2.newObject("PartDesign::Pocket", "Pocket005")
pocket6.Profile = sketch8
pocket6.setExpression("Length", "Params.pocket6_length")

# Sketch on XZ plane
sketch9 = body2.newObject("Sketcher::SketchObject", "Sketch008")
sketch9.AttachmentSupport = (doc.getObject("XZ_Plane001"), [""])
sketch9.MapMode = "FlatFace"
sketch9.AttachmentOffset = App.Placement(App.Vector(0, 0, 48.289026), App.Rotation())
sketch9.addGeometry(Part.LineSegment(App.Vector(-85, 60, 0), App.Vector(-85, 5, 0)), False)
sketch9.addGeometry(Part.LineSegment(App.Vector(-85, 5, 0), App.Vector(-70, 5, 0)), False)
sketch9.addGeometry(Part.LineSegment(App.Vector(-70, 5, 0), App.Vector(-70, 60, 0)), False)
sketch9.addGeometry(Part.LineSegment(App.Vector(-70, 60, 0), App.Vector(-85, 60, 0)), False)
sketch9.addConstraint(Sketcher.Constraint("Coincident", 0, 2, 1, 1))
sketch9.addConstraint(Sketcher.Constraint("Coincident", 1, 2, 2, 1))
sketch9.addConstraint(Sketcher.Constraint("Coincident", 2, 2, 3, 1))
sketch9.addConstraint(Sketcher.Constraint("Coincident", 3, 2, 0, 1))
sketch9.addConstraint(Sketcher.Constraint("Vertical", 0))
sketch9.addConstraint(Sketcher.Constraint("Horizontal", 1))
sketch9.addConstraint(Sketcher.Constraint("Vertical", 2))
sketch9.addConstraint(Sketcher.Constraint("Horizontal", 3))
sketch9.addConstraint(Sketcher.Constraint("DistanceY", 0, 2, 0, 1, 55.0))
sketch9.addConstraint(Sketcher.Constraint("DistanceY", -1, 1, 0, 2, 5.0))
sketch9.addConstraint(Sketcher.Constraint("DistanceX", 1, 1, 1, 2, 14.415))
sketch9.addConstraint(Sketcher.Constraint("DistanceX", 0, 2, -1, 1, 84.703451))
sketch9.setExpression("Constraints[8]", "Params.sketch9_height")
pocket7 = body2.newObject("PartDesign::Pocket", "Pocket006")
pocket7.Profile = sketch9
pocket7.setExpression("Length", "Params.pocket7_length")

doc.recompute()
